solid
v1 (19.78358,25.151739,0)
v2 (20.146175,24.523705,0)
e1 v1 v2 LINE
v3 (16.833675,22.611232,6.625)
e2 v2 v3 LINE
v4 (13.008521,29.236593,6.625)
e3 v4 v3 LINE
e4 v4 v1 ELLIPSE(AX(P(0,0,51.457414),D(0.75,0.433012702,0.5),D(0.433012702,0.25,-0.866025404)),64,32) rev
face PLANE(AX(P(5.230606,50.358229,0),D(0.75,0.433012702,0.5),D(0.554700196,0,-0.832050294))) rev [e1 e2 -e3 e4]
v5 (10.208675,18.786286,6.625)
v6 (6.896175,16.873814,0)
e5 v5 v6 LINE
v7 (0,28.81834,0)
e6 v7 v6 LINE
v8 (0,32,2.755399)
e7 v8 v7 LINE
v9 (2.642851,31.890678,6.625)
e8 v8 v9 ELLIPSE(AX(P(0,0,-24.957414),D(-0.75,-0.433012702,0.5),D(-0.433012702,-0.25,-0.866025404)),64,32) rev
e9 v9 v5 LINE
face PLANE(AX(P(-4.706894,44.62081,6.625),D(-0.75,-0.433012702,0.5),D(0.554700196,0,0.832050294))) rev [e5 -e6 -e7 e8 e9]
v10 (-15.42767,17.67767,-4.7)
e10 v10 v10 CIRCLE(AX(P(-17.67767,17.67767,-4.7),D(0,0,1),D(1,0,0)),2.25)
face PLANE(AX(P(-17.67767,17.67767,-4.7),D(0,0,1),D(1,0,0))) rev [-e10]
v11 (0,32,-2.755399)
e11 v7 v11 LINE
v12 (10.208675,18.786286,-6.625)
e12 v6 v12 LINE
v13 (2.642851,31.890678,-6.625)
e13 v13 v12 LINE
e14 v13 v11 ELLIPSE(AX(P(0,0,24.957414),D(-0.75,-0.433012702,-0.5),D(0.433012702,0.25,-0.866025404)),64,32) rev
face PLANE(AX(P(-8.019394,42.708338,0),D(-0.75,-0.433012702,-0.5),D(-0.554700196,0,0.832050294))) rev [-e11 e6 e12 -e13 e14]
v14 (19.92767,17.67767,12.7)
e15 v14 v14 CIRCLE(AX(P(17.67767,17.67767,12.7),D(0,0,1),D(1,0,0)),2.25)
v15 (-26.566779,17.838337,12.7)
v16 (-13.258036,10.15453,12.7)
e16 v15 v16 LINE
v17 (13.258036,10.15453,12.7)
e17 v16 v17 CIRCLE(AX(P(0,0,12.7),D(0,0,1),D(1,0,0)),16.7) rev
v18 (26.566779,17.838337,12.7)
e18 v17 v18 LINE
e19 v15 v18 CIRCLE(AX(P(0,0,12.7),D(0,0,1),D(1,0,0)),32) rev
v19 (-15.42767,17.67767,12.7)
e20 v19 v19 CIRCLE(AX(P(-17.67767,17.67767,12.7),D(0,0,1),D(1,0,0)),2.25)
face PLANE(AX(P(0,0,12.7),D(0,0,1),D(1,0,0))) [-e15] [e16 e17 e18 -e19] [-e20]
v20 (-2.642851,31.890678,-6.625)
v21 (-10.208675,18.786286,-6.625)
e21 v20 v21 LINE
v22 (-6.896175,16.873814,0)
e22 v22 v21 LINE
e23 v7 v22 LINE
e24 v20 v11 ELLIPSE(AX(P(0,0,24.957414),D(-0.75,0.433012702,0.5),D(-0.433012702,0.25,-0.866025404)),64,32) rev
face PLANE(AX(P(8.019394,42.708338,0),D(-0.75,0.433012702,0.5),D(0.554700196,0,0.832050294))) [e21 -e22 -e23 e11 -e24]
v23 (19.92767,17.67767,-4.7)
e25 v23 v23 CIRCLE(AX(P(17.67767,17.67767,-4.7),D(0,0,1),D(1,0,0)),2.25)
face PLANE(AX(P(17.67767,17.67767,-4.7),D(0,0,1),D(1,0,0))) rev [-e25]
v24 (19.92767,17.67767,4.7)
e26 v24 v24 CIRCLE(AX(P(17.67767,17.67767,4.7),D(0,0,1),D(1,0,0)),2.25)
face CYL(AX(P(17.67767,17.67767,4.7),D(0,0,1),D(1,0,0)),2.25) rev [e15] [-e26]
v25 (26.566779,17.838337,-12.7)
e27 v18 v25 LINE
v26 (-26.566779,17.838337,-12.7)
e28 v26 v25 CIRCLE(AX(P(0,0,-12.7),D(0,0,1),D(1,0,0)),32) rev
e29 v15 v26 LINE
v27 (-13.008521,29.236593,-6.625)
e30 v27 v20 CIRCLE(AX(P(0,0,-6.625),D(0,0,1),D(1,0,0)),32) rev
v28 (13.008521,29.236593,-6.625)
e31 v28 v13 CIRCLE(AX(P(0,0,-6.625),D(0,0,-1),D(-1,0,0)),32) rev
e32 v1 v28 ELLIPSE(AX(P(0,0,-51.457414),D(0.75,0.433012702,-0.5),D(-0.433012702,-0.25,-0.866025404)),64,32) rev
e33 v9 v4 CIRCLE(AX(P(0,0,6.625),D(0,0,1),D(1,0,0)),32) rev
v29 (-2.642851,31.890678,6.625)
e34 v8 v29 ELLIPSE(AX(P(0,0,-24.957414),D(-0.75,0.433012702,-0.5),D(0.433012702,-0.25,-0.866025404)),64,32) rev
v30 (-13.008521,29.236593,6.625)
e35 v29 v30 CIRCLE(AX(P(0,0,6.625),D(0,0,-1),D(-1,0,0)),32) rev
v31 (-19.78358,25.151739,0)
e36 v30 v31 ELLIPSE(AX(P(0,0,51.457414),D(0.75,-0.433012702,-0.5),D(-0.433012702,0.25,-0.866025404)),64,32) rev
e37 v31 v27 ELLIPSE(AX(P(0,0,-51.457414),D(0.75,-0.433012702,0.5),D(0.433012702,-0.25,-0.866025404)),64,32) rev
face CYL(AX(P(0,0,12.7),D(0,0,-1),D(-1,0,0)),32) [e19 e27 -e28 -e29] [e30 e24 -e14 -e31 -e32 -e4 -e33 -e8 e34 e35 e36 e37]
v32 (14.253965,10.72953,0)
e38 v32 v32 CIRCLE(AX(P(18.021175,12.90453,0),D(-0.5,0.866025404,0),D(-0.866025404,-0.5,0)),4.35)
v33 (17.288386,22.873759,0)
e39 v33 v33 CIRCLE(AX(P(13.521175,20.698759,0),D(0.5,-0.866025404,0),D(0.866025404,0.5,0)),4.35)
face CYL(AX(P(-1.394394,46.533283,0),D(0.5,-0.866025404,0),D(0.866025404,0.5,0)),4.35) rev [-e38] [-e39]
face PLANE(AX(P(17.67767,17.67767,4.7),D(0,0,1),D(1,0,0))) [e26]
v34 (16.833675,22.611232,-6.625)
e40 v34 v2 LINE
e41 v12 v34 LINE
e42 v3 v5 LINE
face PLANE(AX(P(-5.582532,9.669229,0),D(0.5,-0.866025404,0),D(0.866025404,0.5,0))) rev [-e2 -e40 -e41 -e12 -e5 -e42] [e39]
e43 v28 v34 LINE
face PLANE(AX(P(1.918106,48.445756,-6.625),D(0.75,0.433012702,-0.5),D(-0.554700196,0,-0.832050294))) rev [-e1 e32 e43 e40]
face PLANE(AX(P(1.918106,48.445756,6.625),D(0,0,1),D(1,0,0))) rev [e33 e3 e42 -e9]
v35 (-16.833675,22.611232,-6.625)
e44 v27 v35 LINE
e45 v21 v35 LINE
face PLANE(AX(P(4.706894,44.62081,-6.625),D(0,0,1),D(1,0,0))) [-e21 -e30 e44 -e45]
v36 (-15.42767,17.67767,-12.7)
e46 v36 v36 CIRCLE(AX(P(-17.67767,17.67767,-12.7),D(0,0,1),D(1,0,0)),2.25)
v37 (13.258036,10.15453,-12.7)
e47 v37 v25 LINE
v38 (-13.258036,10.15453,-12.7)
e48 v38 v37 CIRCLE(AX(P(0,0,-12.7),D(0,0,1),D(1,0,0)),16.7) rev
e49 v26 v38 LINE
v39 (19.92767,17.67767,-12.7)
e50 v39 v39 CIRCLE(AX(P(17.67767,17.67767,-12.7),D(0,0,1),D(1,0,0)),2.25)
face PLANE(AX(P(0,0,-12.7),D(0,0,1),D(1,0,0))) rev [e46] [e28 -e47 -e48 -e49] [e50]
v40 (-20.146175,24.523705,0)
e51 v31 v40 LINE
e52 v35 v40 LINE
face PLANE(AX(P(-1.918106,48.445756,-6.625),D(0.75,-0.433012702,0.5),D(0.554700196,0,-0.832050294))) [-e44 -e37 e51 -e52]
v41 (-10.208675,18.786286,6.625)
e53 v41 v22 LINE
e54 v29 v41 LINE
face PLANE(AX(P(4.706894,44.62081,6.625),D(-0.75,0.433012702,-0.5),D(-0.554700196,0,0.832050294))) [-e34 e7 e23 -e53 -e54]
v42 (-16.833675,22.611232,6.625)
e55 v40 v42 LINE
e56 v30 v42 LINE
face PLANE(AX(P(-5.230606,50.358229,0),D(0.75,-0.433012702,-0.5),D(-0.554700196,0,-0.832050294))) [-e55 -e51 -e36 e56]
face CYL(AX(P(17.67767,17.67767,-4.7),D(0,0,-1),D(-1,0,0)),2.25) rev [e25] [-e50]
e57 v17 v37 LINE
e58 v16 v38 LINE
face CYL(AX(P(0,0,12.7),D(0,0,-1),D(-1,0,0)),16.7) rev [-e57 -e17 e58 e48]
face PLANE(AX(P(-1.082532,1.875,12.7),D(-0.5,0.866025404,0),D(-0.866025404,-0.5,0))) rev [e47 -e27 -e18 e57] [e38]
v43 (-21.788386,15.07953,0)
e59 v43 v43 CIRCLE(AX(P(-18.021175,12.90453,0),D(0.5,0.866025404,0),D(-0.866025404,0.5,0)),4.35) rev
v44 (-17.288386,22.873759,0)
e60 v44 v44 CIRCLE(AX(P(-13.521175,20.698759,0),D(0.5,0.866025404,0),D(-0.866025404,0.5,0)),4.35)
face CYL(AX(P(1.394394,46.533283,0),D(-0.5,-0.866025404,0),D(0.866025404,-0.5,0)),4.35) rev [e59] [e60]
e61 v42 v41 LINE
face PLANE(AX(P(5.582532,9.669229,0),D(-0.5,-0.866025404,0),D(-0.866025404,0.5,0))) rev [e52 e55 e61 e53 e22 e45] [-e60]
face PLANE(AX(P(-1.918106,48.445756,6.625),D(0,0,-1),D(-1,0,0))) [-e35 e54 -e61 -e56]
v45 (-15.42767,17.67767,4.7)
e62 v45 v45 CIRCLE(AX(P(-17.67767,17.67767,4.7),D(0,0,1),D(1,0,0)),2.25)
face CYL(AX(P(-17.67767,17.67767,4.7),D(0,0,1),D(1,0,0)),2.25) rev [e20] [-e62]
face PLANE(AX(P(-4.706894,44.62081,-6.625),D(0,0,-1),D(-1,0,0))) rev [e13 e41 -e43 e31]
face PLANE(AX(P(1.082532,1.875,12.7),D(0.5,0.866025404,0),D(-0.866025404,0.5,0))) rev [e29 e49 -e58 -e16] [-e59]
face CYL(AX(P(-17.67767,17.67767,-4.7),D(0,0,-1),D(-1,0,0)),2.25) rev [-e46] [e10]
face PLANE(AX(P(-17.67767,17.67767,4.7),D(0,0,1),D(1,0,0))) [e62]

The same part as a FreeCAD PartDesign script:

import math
import FreeCAD as App
import Part
import Sketcher

V = App.Vector
Q = App.Units.Quantity


def add_polygon(sketch, points):
    """Adds a closed chain of lines whose ends are joined by coincident constraints."""
    first, n = sketch.GeometryCount, len(points)
    for a, b in zip(points, points[1:] + points[:1]):
        sketch.addGeometry(Part.LineSegment(App.Vector(*a, 0), App.Vector(*b, 0)), False)
    for i in range(n):
        sketch.addConstraint(Sketcher.Constraint("Coincident", first + i, 2, first + (i + 1) % n, 1))

doc = App.newDocument("Part")
body = doc.addObject("PartDesign::Body", "Body")

# Sketch on XY plane
sketch1 = body.newObject("Sketcher::SketchObject", "Sketch")
sketch1.AttachmentSupport = (doc.getObject("XY_Plane"), [""])
sketch1.MapMode = "FlatFace"
sketch1.addGeometry(Part.ArcOfCircle(Part.Circle(V(0, 0, 0), V(0, 0, 1), 32), math.radians(34), math.radians(146)), False)
sketch1.addGeometry(Part.LineSegment(V(-27, 18, 0), V(-13, 10, 0)), False)
sketch1.addGeometry(Part.ArcOfCircle(Part.Circle(V(0, 0, 0), V(0, 0, 1), 17), math.radians(37), math.radians(143)), False)
sketch1.addGeometry(Part.LineSegment(V(13, 10, 0), V(27, 18, 0)), False)
sketch1.addConstraint(Sketcher.Constraint("Coincident", 0, 2, 1, 1))
sketch1.addConstraint(Sketcher.Constraint("Coincident", 1, 2, 2, 2))
sketch1.addConstraint(Sketcher.Constraint("Coincident", 2, 1, 3, 1))
sketch1.addConstraint(Sketcher.Constraint("Coincident", 3, 2, 0, 1))
sketch1.addConstraint(Sketcher.Constraint("Coincident", 0, 3, -1, 1))
sketch1.addConstraint(Sketcher.Constraint("Coincident", 2, 3, -1, 1))
sketch1.addConstraint(Sketcher.Constraint("Horizontal", 1, 2, 2, 1))
sketch1.addConstraint(Sketcher.Constraint("Horizontal", 0, 2, 3, 2))
sketch1.addConstraint(Sketcher.Constraint("Radius", 0, Q("32 mm")))
sketch1.addConstraint(Sketcher.Constraint("Radius", 2, Q("16.7 mm")))
sketch1.addConstraint(Sketcher.Constraint("Angle", 1, Q("-30 deg")))
sketch1.addConstraint(Sketcher.Constraint("DistanceX", 0, 2, -1, 1, Q("26.566779 mm")))
pad1 = body.newObject("PartDesign::Pad", "Pad")
pad1.Profile = sketch1
pad1.Length = 25.4
pad1.Midplane = True

# Sketch on an angled plane
sketch2 = body.newObject("Sketcher::SketchObject", "Sketch001")
sketch2.Placement = App.Placement(V(-1.082532, 1.875, 0), App.Rotation(V(0.866025404, 0.5, 0), V(0, 0, 1), V(0.5, -0.866025404, 0), "ZXY"))
sketch2.addGeometry(Part.Circle(V(22.1, 0, 0), V(0, 0, 1), 4.3), False)
sketch2.addConstraint(Sketcher.Constraint("PointOnObject", 0, 3, -1))
sketch2.addConstraint(Sketcher.Constraint("Diameter", 0, Q("8.7 mm")))
sketch2.addConstraint(Sketcher.Constraint("DistanceX", -1, 1, 0, 3, Q("22.059061 mm")))
pocket1 = body.newObject("PartDesign::Pocket", "Pocket")
pocket1.Profile = sketch2
pocket1.Length = 87.633872
pocket1.Midplane = True

# Sketch on XY plane
sketch3 = body.newObject("Sketcher::SketchObject", "Sketch002")
sketch3.AttachmentSupport = (doc.getObject("XY_Plane"), [""])
sketch3.MapMode = "FlatFace"
sketch3.AttachmentOffset = App.Placement(V(0, 0, 12.7), App.Rotation())
sketch3.addGeometry(Part.Circle(V(17.7, 17.7, 0), V(0, 0, 1), 2.2), False)
sketch3.addConstraint(Sketcher.Constraint("Diameter", 0, Q("4.5 mm")))
sketch3.addConstraint(Sketcher.Constraint("DistanceX", -1, 1, 0, 3, Q("17.67767 mm")))
sketch3.addConstraint(Sketcher.Constraint("DistanceY", -1, 1, 0, 3, Q("17.67767 mm")))
pocket2 = body.newObject("PartDesign::Pocket", "Pocket001")
pocket2.Profile = sketch3
pocket2.Length = 8

# Sketch on XY plane
sketch4 = body.newObject("Sketcher::SketchObject", "Sketch003")
sketch4.AttachmentSupport = (doc.getObject("XY_Plane"), [""])
sketch4.MapMode = "FlatFace"
sketch4.AttachmentOffset = App.Placement(V(0, 0, -12.7), App.Rotation())
sketch4.addGeometry(Part.Circle(V(17.7, 17.7, 0), V(0, 0, 1), 2.2), False)
sketch4.addConstraint(Sketcher.Constraint("Diameter", 0, Q("4.5 mm")))
sketch4.addConstraint(Sketcher.Constraint("DistanceX", -1, 1, 0, 3, Q("17.67767 mm")))
sketch4.addConstraint(Sketcher.Constraint("DistanceY", -1, 1, 0, 3, Q("17.67767 mm")))
pocket3 = body.newObject("PartDesign::Pocket", "Pocket002")
pocket3.Profile = sketch4
pocket3.Length = 8
pocket3.Reversed = True

# Sketch on an angled plane
sketch5 = body.newObject("Sketcher::SketchObject", "Sketch004")
sketch5.Placement = App.Placement(V(-5.582532, 9.669229, 0), App.Rotation(V(0.866025404, 0.5, 0), V(0, 0, 1), V(0.5, -0.866025404, 0), "ZXY"))
add_polygon(sketch5, [(18.2, -6.6), (25.9, -6.6), (29.7, 0), (25.9, 6.6), (18.2, 6.6), (14.4, 0)])  # lines 0-5
sketch5.addGeometry(Part.Circle(V(22.1, 0, 0), V(0, 0, 1), 4.3), False)  # 6
sketch5.addConstraint(Sketcher.Constraint("Horizontal", 0))
sketch5.addConstraint(Sketcher.Constraint("Horizontal", 3))
sketch5.addConstraint(Sketcher.Constraint("Symmetric", 0, 2, 2, 2, -1))
sketch5.addConstraint(Sketcher.Constraint("PointOnObject", 6, 3, -1))
sketch5.addConstraint(Sketcher.Constraint("PointOnObject", 1, 2, -1))
sketch5.addConstraint(Sketcher.Constraint("PointOnObject", 4, 2, -1))
sketch5.addConstraint(Sketcher.Constraint("Parallel", 1, 4))
sketch5.addConstraint(Sketcher.Constraint("Parallel", 2, 5))
sketch5.addConstraint(Sketcher.Constraint("Diameter", 6, Q("8.7 mm")))
sketch5.addConstraint(Sketcher.Constraint("Angle", 1, Q("60 deg")))
sketch5.addConstraint(Sketcher.Constraint("DistanceY", 0, 2, 2, 2, Q("13.25 mm")))
sketch5.addConstraint(Sketcher.Constraint("DistanceX", 0, 1, 0, 2, Q("7.649891 mm")))
sketch5.addConstraint(Sketcher.Constraint("DistanceX", -1, 1, 6, 3, Q("22.059061 mm")))
sketch5.addConstraint(Sketcher.Constraint("DistanceX", -1, 1, 4, 2, Q("14.40917 mm")))
pocket4 = body.newObject("PartDesign::Pocket", "Pocket003")
pocket4.Profile = sketch5
pocket4.Type = "ThroughAll"
doc.recompute()

mirrored = body.newObject("PartDesign::Mirrored", "Mirrored")
mirrored.Originals = [pocket1, pocket2, pocket3, pocket4]
mirrored.MirrorPlane = (doc.getObject("YZ_Plane"), [""])
body.Tip = mirrored

doc.recompute()
